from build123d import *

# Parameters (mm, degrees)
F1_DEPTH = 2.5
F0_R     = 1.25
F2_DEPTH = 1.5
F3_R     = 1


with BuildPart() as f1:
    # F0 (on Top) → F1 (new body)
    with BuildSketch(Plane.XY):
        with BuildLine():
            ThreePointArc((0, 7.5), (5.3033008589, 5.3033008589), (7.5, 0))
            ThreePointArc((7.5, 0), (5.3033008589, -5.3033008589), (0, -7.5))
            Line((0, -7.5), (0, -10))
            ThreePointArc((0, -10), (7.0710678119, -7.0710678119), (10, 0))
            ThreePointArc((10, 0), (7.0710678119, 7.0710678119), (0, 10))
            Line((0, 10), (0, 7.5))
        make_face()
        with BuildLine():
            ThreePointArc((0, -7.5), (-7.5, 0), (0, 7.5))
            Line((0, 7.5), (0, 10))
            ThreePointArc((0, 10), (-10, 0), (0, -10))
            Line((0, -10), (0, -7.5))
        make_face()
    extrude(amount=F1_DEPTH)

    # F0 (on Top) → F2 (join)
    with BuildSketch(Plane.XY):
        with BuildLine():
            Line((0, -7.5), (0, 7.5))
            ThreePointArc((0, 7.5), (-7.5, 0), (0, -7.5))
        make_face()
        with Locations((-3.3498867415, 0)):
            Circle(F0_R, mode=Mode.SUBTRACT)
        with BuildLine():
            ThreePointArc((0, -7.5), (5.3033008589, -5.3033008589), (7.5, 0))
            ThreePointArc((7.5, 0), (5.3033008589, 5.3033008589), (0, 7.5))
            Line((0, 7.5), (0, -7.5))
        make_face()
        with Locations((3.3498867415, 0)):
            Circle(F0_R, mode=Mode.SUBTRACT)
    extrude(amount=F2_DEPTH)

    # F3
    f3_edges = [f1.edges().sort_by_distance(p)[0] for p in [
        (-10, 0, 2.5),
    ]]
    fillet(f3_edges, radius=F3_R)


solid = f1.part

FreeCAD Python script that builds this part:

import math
import FreeCAD as App
import Part
import Sketcher

V = App.Vector
Q = App.Units.Quantity


def edges_at(feature, points):
    """Names of the edges that pass closest to the given points."""
    edges = feature.Shape.Edges
    near = lambda p: min(range(len(edges)), key=lambda i: edges[i].distToShape(Part.Vertex(*p))[0])
    return sorted({f"Edge{near(p) + 1}" for p in points})

doc = App.newDocument("Part")
body = doc.addObject("PartDesign::Body", "Body")

# Sketch on XY plane
sketch1 = doc.addObject("Sketcher::SketchObject", "Sketch")
body.addObject(sketch1)
sketch1.AttachmentSupport = (doc.XY_Plane, [""])
sketch1.MapMode = "FlatFace"
sketch1.addGeometry(Part.ArcOfCircle(Part.Circle(V(0, 0, 0), V(0, 0, 1), 10), math.radians(-90), math.radians(0)), False)
sketch1.addGeometry(Part.ArcOfCircle(Part.Circle(V(0, 0, 0), V(0, 0, 1), 10), math.radians(0), math.radians(90)), False)
sketch1.addGeometry(Part.ArcOfCircle(Part.Circle(V(0, 0, 0), V(0, 0, 1), 10), math.radians(90), math.radians(270)), False)
sketch1.addGeometry(Part.Circle(V(0, 0, 0), V(0, 0, 1), 8), False)
sketch1.addConstraint(Sketcher.Constraint("Tangent", 0, 2, 1, 1))
sketch1.addConstraint(Sketcher.Constraint("Tangent", 1, 2, 2, 1))
sketch1.addConstraint(Sketcher.Constraint("Tangent", 2, 2, 0, 1))
sketch1.addConstraint(Sketcher.Constraint("Coincident", 0, 3, -1, 1))
sketch1.addConstraint(Sketcher.Constraint("Coincident", 3, 3, -1, 1))
sketch1.addConstraint(Sketcher.Constraint("PointOnObject", 0, 2, -1))
sketch1.addConstraint(Sketcher.Constraint("PointOnObject", 1, 2, -2))
sketch1.addConstraint(Sketcher.Constraint("PointOnObject", 2, 2, -2))
sketch1.addConstraint(Sketcher.Constraint("Diameter", 3, Q("15 mm")))
sketch1.addConstraint(Sketcher.Constraint("Radius", 0, Q("10 mm")))
pad1 = doc.addObject("PartDesign::Pad", "Pad")
body.addObject(pad1)
pad1.Profile = sketch1
pad1.Length = 2.5

# Sketch on XY plane
sketch2 = doc.addObject("Sketcher::SketchObject", "Sketch001")
body.addObject(sketch2)
sketch2.AttachmentSupport = (doc.XY_Plane, [""])
sketch2.MapMode = "FlatFace"
sketch2.addGeometry(Part.Circle(V(0, 0, 0), V(0, 0, 1), 7.5), False)
sketch2.addGeometry(Part.Circle(V(-3.3, 0, 0), V(0, 0, 1), 1.2), False)
sketch2.addGeometry(Part.Circle(V(3.3, 0, 0), V(0, 0, 1), 1.2), False)
sketch2.addConstraint(Sketcher.Constraint("Coincident", 0, 3, -1, 1))
sketch2.addConstraint(Sketcher.Constraint("Equal", 1, 2))
sketch2.addConstraint(Sketcher.Constraint("Symmetric", 1, 3, 2, 3, -1, 1))
sketch2.addConstraint(Sketcher.Constraint("PointOnObject", 1, 3, -1))
sketch2.addConstraint(Sketcher.Constraint("Diameter", 0, Q("15 mm")))
sketch2.addConstraint(Sketcher.Constraint("Diameter", 1, Q("2.5 mm")))
sketch2.addConstraint(Sketcher.Constraint("DistanceX", 1, 3, -1, 1, Q("3.349887 mm")))
pad2 = doc.addObject("PartDesign::Pad", "Pad001")
body.addObject(pad2)
pad2.Profile = sketch2
pad2.Length = 1.5
doc.recompute()

fillet = doc.addObject("PartDesign::Fillet", "Fillet")
body.addObject(fillet)
fillet.Base = (pad2, edges_at(pad2, [(-10, 0, 2.5)]))
fillet.Radius = 1

doc.recompute()
